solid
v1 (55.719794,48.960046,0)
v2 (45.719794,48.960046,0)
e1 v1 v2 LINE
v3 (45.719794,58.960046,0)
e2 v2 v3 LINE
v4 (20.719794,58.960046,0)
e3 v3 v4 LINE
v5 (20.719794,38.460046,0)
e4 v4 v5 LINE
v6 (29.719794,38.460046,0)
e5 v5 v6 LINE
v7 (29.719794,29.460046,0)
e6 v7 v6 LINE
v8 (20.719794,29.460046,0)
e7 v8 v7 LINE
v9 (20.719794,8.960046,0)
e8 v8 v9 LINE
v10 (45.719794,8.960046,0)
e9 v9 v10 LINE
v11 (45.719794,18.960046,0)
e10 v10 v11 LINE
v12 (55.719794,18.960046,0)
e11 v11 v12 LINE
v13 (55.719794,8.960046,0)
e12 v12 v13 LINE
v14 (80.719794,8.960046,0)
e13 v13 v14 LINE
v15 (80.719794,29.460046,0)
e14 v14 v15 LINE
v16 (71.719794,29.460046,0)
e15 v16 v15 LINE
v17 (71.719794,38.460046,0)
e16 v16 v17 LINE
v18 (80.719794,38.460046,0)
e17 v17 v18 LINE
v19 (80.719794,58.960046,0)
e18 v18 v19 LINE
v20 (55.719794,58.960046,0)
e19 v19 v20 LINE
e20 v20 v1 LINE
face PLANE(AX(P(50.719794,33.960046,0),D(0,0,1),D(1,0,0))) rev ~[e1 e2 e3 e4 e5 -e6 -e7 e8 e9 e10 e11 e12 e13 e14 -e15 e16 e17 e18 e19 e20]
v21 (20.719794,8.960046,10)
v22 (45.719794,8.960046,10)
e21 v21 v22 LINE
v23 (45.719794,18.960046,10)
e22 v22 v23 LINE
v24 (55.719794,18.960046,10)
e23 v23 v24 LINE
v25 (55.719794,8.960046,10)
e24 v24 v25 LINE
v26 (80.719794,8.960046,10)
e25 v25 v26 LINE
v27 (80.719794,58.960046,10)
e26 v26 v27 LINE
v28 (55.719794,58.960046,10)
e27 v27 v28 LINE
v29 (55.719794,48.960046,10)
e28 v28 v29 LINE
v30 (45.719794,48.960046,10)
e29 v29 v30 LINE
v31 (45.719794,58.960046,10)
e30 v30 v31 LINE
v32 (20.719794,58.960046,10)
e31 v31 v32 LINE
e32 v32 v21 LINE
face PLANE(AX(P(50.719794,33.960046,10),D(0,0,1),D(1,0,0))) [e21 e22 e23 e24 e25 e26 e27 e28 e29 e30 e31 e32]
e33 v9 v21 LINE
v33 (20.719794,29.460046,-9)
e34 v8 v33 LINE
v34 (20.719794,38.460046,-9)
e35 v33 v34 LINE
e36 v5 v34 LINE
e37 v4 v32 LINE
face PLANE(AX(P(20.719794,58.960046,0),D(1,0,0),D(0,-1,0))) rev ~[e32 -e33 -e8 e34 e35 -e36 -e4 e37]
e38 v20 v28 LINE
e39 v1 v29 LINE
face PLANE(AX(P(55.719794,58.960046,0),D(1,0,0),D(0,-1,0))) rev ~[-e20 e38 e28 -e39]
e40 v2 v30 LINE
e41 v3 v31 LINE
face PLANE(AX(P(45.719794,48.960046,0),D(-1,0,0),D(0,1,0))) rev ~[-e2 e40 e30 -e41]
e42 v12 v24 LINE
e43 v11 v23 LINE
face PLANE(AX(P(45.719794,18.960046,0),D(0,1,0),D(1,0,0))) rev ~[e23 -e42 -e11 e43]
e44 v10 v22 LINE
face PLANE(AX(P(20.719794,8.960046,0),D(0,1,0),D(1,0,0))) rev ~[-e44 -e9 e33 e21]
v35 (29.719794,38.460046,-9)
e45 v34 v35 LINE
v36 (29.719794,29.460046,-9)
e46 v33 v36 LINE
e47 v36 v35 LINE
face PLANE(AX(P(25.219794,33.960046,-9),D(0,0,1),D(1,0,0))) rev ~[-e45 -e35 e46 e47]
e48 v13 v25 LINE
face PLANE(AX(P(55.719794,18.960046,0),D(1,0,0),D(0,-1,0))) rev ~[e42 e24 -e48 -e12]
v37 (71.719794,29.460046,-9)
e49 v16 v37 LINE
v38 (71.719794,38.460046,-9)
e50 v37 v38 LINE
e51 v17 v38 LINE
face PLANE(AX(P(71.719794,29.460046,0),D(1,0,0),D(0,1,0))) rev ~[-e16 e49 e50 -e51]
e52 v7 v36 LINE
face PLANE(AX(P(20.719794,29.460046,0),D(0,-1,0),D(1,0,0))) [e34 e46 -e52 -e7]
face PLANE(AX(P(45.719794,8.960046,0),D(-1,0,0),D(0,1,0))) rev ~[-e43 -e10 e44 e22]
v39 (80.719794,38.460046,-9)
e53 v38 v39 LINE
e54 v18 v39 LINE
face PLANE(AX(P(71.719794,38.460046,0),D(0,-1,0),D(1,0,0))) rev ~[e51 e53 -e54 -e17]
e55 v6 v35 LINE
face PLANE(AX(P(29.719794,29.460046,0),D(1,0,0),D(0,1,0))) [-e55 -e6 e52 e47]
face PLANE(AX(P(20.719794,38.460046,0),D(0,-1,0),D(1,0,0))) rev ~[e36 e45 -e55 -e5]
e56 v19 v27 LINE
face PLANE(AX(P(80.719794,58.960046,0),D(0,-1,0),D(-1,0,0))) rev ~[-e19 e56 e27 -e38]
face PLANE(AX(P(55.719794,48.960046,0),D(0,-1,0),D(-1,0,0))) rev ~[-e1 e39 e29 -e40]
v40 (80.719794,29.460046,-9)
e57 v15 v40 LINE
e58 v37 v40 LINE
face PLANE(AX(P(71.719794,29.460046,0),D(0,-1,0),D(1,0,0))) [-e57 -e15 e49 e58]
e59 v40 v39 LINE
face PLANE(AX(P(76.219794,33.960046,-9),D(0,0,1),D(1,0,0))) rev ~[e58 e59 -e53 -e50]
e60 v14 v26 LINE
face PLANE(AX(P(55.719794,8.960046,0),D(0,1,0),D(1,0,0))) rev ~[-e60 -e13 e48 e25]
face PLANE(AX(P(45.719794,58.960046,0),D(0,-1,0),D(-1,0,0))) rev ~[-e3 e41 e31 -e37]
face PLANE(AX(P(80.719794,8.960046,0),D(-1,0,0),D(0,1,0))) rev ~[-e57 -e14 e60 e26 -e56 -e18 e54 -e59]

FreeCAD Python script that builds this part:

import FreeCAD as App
import Part
import Sketcher

V = App.Vector
Q = App.Units.Quantity

doc = App.newDocument("Part")
params = doc.addObject("Spreadsheet::Sheet", "Params")
for row, (alias, value) in enumerate([
    ("sketch1_width", "25 mm"),
    ("sketch1_width2", "10 mm"),
    ("sketch1_height", "50 mm"),
    ("pad1_length", "10 mm"),
    ("sketch2_width", "9 mm"),
    ("pad2_length", "9 mm"),
], start=1):
    params.set(f"A{row}", alias)
    params.set(f"B{row}", "=" + value)
    params.setAlias(f"B{row}", alias)

body = doc.addObject("PartDesign::Body", "Body")

sketch1 = body.newObject("Sketcher::SketchObject", "Sketch")
sketch1.AttachmentSupport = (doc.getObject("XY_Plane"), [""])
sketch1.MapMode = "FlatFace"
sketch1.addGeometry([
    Part.LineSegment(V(81, 9, 0), V(81, 59, 0)),
    Part.LineSegment(V(81, 59, 0), V(56, 59, 0)),
    Part.LineSegment(V(56, 59, 0), V(56, 49, 0)),
    Part.LineSegment(V(56, 49, 0), V(46, 49, 0)),
    Part.LineSegment(V(46, 49, 0), V(46, 59, 0)),
    Part.LineSegment(V(46, 59, 0), V(21, 59, 0)),
    Part.LineSegment(V(21, 59, 0), V(21, 9, 0)),
    Part.LineSegment(V(21, 9, 0), V(46, 9, 0)),
    Part.LineSegment(V(46, 9, 0), V(46, 19, 0)),
    Part.LineSegment(V(46, 19, 0), V(56, 19, 0)),
    Part.LineSegment(V(56, 19, 0), V(56, 9, 0)),
    Part.LineSegment(V(56, 9, 0), V(81, 9, 0)),
], False)
sketch1.addConstraint([
    Sketcher.Constraint("Coincident", 0, 2, 1, 1),
    Sketcher.Constraint("Coincident", 1, 2, 2, 1),
    Sketcher.Constraint("Coincident", 2, 2, 3, 1),
    Sketcher.Constraint("Coincident", 3, 2, 4, 1),
    Sketcher.Constraint("Coincident", 4, 2, 5, 1),
    Sketcher.Constraint("Coincident", 5, 2, 6, 1),
    Sketcher.Constraint("Coincident", 6, 2, 7, 1),
    Sketcher.Constraint("Coincident", 7, 2, 8, 1),
    Sketcher.Constraint("Coincident", 8, 2, 9, 1),
    Sketcher.Constraint("Coincident", 9, 2, 10, 1),
    Sketcher.Constraint("Coincident", 10, 2, 11, 1),
    Sketcher.Constraint("Coincident", 11, 2, 0, 1),
    Sketcher.Constraint("Vertical", 0),
    Sketcher.Constraint("Horizontal", 1),
    Sketcher.Constraint("Vertical", 2),
    Sketcher.Constraint("Horizontal", 3),
    Sketcher.Constraint("Vertical", 4),
    Sketcher.Constraint("Horizontal", 5),
    Sketcher.Constraint("Vertical", 6),
    Sketcher.Constraint("Horizontal", 7),
    Sketcher.Constraint("Vertical", 8),
    Sketcher.Constraint("Horizontal", 9),
    Sketcher.Constraint("Vertical", 10),
    Sketcher.Constraint("Horizontal", 11),
    Sketcher.Constraint("Horizontal", 1, 2, 4, 2),
    Sketcher.Constraint("Horizontal", 7, 2, 10, 2),
    Sketcher.Constraint("Vertical", 4, 2, 7, 2),
    Sketcher.Constraint("Vertical", 2, 2, 9, 2),
    Sketcher.Constraint("Equal", 1, 5),
    Sketcher.Constraint("Equal", 9, 2),
    Sketcher.Constraint("Equal", 4, 8),
    Sketcher.Constraint("DistanceX", 1, 2, 1, 1, Q("25 mm")),
    Sketcher.Constraint("DistanceX", 3, 2, 3, 1, Q("10 mm")),
    Sketcher.Constraint("DistanceY", 0, 1, 0, 2, Q("50 mm")),
    Sketcher.Constraint("DistanceX", -1, 1, 0, 2, Q("80.719794 mm")),
    Sketcher.Constraint("DistanceY", -1, 1, 0, 2, Q("58.960046 mm")),
])
sketch1.setExpression("Constraints[31]", "Params.sketch1_width")
sketch1.setExpression("Constraints[32]", "Params.sketch1_width2")
sketch1.setExpression("Constraints[33]", "Params.sketch1_height")
pad1 = body.newObject("PartDesign::Pad", "Pad")
pad1.Profile = sketch1
pad1.setExpression("Length", "Params.pad1_length")

sketch2 = body.newObject("Sketcher::SketchObject", "Sketch001")
sketch2.AttachmentSupport = (doc.getObject("XY_Plane"), [""])
sketch2.MapMode = "FlatFace"
sketch2.addGeometry([
    Part.LineSegment(V(21, 38, 0), V(21, 29, 0)),
    Part.LineSegment(V(21, 29, 0), V(30, 29, 0)),
    Part.LineSegment(V(30, 29, 0), V(30, 38, 0)),
    Part.LineSegment(V(30, 38, 0), V(21, 38, 0)),
    Part.LineSegment(V(72, 38, 0), V(72, 29, 0)),
    Part.LineSegment(V(72, 29, 0), V(81, 29, 0)),
    Part.LineSegment(V(81, 29, 0), V(81, 38, 0)),
    Part.LineSegment(V(81, 38, 0), V(72, 38, 0)),
], False)
sketch2.addConstraint([
    Sketcher.Constraint("Coincident", 0, 2, 1, 1),
    Sketcher.Constraint("Coincident", 1, 2, 2, 1),
    Sketcher.Constraint("Coincident", 2, 2, 3, 1),
    Sketcher.Constraint("Coincident", 3, 2, 0, 1),
    Sketcher.Constraint("Coincident", 4, 2, 5, 1),
    Sketcher.Constraint("Coincident", 5, 2, 6, 1),
    Sketcher.Constraint("Coincident", 6, 2, 7, 1),
    Sketcher.Constraint("Coincident", 7, 2, 4, 1),
    Sketcher.Constraint("Vertical", 0),
    Sketcher.Constraint("Horizontal", 1),
    Sketcher.Constraint("Vertical", 2),
    Sketcher.Constraint("Horizontal", 3),
    Sketcher.Constraint("Vertical", 4),
    Sketcher.Constraint("Horizontal", 5),
    Sketcher.Constraint("Vertical", 6),
    Sketcher.Constraint("Horizontal", 7),
    Sketcher.Constraint("Horizontal", 1, 2, 4, 2),
    Sketcher.Constraint("Horizontal", 3, 2, 6, 2),
    Sketcher.Constraint("Equal", 3, 5),
    Sketcher.Constraint("Equal", 7, 0),
    Sketcher.Constraint("DistanceX", 1, 1, 1, 2, Q("9 mm")),
    Sketcher.Constraint("DistanceX", 1, 2, 4, 2, Q("42 mm")),
    Sketcher.Constraint("DistanceX", -1, 1, 0, 2, Q("20.719794 mm")),
    Sketcher.Constraint("DistanceY", -1, 1, 0, 2, Q("29.460046 mm")),
])
sketch2.setExpression("Constraints[20]", "Params.sketch2_width")
pad2 = body.newObject("PartDesign::Pad", "Pad001")
pad2.Profile = sketch2
pad2.setExpression("Length", "Params.pad2_length")
pad2.Reversed = True

doc.recompute()
